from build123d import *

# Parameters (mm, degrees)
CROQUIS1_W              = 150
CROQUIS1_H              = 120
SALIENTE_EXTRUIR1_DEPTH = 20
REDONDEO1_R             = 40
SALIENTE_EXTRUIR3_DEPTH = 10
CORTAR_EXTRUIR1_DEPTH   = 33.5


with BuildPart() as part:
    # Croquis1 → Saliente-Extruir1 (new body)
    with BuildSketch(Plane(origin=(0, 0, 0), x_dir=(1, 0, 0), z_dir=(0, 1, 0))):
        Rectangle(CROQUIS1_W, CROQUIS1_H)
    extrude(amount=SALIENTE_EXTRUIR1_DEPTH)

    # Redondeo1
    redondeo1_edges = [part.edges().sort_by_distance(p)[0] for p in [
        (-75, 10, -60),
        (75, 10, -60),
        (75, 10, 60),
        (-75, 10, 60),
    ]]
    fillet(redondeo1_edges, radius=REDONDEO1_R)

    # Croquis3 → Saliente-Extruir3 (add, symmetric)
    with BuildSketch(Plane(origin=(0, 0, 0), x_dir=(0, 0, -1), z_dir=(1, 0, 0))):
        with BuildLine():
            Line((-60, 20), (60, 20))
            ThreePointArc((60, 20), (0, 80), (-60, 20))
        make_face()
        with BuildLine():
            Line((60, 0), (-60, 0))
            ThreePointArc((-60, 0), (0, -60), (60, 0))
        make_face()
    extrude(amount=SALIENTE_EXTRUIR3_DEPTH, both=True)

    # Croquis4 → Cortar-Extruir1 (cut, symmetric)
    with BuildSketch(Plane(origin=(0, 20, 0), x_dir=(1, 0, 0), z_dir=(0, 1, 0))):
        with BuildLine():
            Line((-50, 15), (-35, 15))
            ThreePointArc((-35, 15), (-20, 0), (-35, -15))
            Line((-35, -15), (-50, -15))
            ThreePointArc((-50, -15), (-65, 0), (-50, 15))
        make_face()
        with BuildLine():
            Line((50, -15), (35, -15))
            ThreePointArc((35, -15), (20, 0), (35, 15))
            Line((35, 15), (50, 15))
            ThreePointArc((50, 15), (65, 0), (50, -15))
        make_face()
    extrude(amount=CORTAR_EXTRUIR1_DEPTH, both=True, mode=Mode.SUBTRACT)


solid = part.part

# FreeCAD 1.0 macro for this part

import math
import FreeCAD as App
import Part
import Sketcher
from FreeCAD import Vector
Q = App.Units.Quantity


def edges_at(feature, points):
    """Names of the edges that pass closest to the given points."""
    edges = feature.Shape.Edges
    near = lambda p: min(range(len(edges)), key=lambda i: edges[i].distToShape(Part.Vertex(*p))[0])
    return sorted({f"Edge{near(p) + 1}" for p in points})

doc = App.newDocument("Part")
body = doc.addObject("PartDesign::Body", "Body")

# Sketch on XZ plane
sketch1 = body.newObject("Sketcher::SketchObject", "Sketch")
sketch1.AttachmentSupport = (doc.getObject("XZ_Plane"), [""])
sketch1.MapMode = "FlatFace"
sketch1.addGeometry(Part.LineSegment(Vector(-75, -60, 0), Vector(-75, 60, 0)), False)
sketch1.addGeometry(Part.LineSegment(Vector(-75, 60, 0), Vector(75, 60, 0)), False)
sketch1.addGeometry(Part.LineSegment(Vector(75, 60, 0), Vector(75, -60, 0)), False)
sketch1.addGeometry(Part.LineSegment(Vector(75, -60, 0), Vector(-75, -60, 0)), False)
sketch1.addConstraint(Sketcher.Constraint("Coincident", 0, 2, 1, 1))
sketch1.addConstraint(Sketcher.Constraint("Coincident", 1, 2, 2, 1))
sketch1.addConstraint(Sketcher.Constraint("Coincident", 2, 2, 3, 1))
sketch1.addConstraint(Sketcher.Constraint("Coincident", 3, 2, 0, 1))
sketch1.addConstraint(Sketcher.Constraint("Vertical", 0))
sketch1.addConstraint(Sketcher.Constraint("Horizontal", 1))
sketch1.addConstraint(Sketcher.Constraint("Vertical", 2))
sketch1.addConstraint(Sketcher.Constraint("Horizontal", 3))
sketch1.addConstraint(Sketcher.Constraint("Symmetric", 0, 2, 2, 2, -1, 1))
sketch1.addConstraint(Sketcher.Constraint("DistanceX", 1, 1, 1, 2, Q("150 mm")))
sketch1.addConstraint(Sketcher.Constraint("DistanceY", 0, 1, 0, 2, Q("120 mm")))
pad1 = body.newObject("PartDesign::Pad", "Pad")
pad1.Profile = sketch1
pad1.Length = 20
pad1.Reversed = True
doc.recompute()

fillet = body.newObject("PartDesign::Fillet", "Fillet")
fillet.Base = (pad1, edges_at(pad1, [
    (-75, 10, -60),
    (75, 10, -60),
    (75, 10, 60),
    (-75, 10, 60),
]))
fillet.Radius = 40

# Sketch on YZ plane
sketch2 = body.newObject("Sketcher::SketchObject", "Sketch001")
sketch2.AttachmentSupport = (doc.getObject("YZ_Plane"), [""])
sketch2.MapMode = "FlatFace"
sketch2.addGeometry(Part.LineSegment(Vector(20, 60, 0), Vector(20, -60, 0)), False)
sketch2.addGeometry(Part.ArcOfCircle(Part.Circle(Vector(20, 0, 0), Vector(0, 0, 1), 60), math.radians(-90), math.radians(90)), False)
sketch2.addGeometry(Part.LineSegment(Vector(0, -60, 0), Vector(0, 60, 0)), False)
sketch2.addGeometry(Part.ArcOfCircle(Part.Circle(Vector(0, 0, 0), Vector(0, 0, 1), 60), math.radians(90), math.radians(270)), False)
sketch2.addConstraint(Sketcher.Constraint("Coincident", 0, 1, 1, 2))
sketch2.addConstraint(Sketcher.Constraint("Coincident", 1, 1, 0, 2))
sketch2.addConstraint(Sketcher.Constraint("Coincident", 2, 1, 3, 2))
sketch2.addConstraint(Sketcher.Constraint("Coincident", 3, 1, 2, 2))
sketch2.addConstraint(Sketcher.Constraint("Vertical", 0))
sketch2.addConstraint(Sketcher.Constraint("Vertical", 2))
sketch2.addConstraint(Sketcher.Constraint("Coincident", 3, 3, -1, 1))
sketch2.addConstraint(Sketcher.Constraint("Equal", 1, 3))
sketch2.addConstraint(Sketcher.Constraint("PointOnObject", 1, 3, -1))
sketch2.addConstraint(Sketcher.Constraint("PointOnObject", 2, 1, -2))
sketch2.addConstraint(Sketcher.Constraint("Vertical", 1, 3, 0, 1))
sketch2.addConstraint(Sketcher.Constraint("Radius", 1, Q("60 mm")))
sketch2.addConstraint(Sketcher.Constraint("DistanceX", -1, 1, 1, 3, Q("20 mm")))
pad2 = body.newObject("PartDesign::Pad", "Pad001")
pad2.Profile = sketch2
pad2.Length = 20
pad2.Midplane = True

# Sketch on XZ plane
sketch3 = body.newObject("Sketcher::SketchObject", "Sketch002")
sketch3.AttachmentSupport = (doc.getObject("XZ_Plane"), [""])
sketch3.MapMode = "FlatFace"
sketch3.AttachmentOffset = App.Placement(Vector(0, 0, -20), App.Rotation())
sketch3.addGeometry(Part.LineSegment(Vector(-35, -15, 0), Vector(-50, -15, 0)), False)
sketch3.addGeometry(Part.ArcOfCircle(Part.Circle(Vector(-50, 0, 0), Vector(0, 0, 1), 15), math.radians(90), math.radians(270)), False)
sketch3.addGeometry(Part.LineSegment(Vector(-50, 15, 0), Vector(-35, 15, 0)), False)
sketch3.addGeometry(Part.ArcOfCircle(Part.Circle(Vector(-35, 0, 0), Vector(0, 0, 1), 15), math.radians(-90), math.radians(90)), False)
sketch3.addGeometry(Part.LineSegment(Vector(35, 15, 0), Vector(50, 15, 0)), False)
sketch3.addGeometry(Part.ArcOfCircle(Part.Circle(Vector(50, 0, 0), Vector(0, 0, 1), 15), math.radians(-90), math.radians(90)), False)
sketch3.addGeometry(Part.LineSegment(Vector(50, -15, 0), Vector(35, -15, 0)), False)
sketch3.addGeometry(Part.ArcOfCircle(Part.Circle(Vector(35, 0, 0), Vector(0, 0, 1), 15), math.radians(90), math.radians(270)), False)
sketch3.addConstraint(Sketcher.Constraint("Tangent", 0, 2, 1, 2))
sketch3.addConstraint(Sketcher.Constraint("Tangent", 1, 1, 2, 1))
sketch3.addConstraint(Sketcher.Constraint("Tangent", 2, 2, 3, 2))
sketch3.addConstraint(Sketcher.Constraint("Tangent", 3, 1, 0, 1))
sketch3.addConstraint(Sketcher.Constraint("Tangent", 4, 2, 5, 2))
sketch3.addConstraint(Sketcher.Constraint("Tangent", 5, 1, 6, 1))
sketch3.addConstraint(Sketcher.Constraint("Tangent", 6, 2, 7, 2))
sketch3.addConstraint(Sketcher.Constraint("Tangent", 7, 1, 4, 1))
sketch3.addConstraint(Sketcher.Constraint("Horizontal", 0))
sketch3.addConstraint(Sketcher.Constraint("Horizontal", 2))
sketch3.addConstraint(Sketcher.Constraint("Horizontal", 4))
sketch3.addConstraint(Sketcher.Constraint("Horizontal", 6))
sketch3.addConstraint(Sketcher.Constraint("Equal", 3, 5))
sketch3.addConstraint(Sketcher.Constraint("Symmetric", 1, 3, 5, 3, -1, 1))
sketch3.addConstraint(Sketcher.Constraint("Symmetric", 3, 3, 7, 3, -2))
sketch3.addConstraint(Sketcher.Constraint("Radius", 1, Q("15 mm")))
sketch3.addConstraint(Sketcher.Constraint("DistanceX", 0, 2, 0, 1, Q("15 mm")))
sketch3.addConstraint(Sketcher.Constraint("DistanceX", 1, 3, -1, 1, Q("50 mm")))
pocket1 = body.newObject("PartDesign::Pocket", "Pocket")
pocket1.Profile = sketch3
pocket1.Length = 67
pocket1.Midplane = True

doc.recompute()
